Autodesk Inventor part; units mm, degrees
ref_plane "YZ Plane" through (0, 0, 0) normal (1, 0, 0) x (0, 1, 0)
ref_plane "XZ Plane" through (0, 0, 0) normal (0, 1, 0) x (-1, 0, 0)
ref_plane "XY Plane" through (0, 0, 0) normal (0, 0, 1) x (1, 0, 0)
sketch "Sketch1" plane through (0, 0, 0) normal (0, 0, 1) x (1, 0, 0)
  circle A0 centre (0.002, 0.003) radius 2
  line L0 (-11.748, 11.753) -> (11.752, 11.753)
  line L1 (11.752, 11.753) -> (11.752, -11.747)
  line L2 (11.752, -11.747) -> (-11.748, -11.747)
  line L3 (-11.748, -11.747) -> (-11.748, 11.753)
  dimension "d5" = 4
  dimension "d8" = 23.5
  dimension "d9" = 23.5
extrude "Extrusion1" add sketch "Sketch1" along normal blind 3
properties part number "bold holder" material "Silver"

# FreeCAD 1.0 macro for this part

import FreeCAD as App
import Part
import Sketcher
Q = App.Units.Quantity

doc = App.newDocument("Part")
body = doc.addObject("PartDesign::Body", "Body")

# Sketch on XY plane
sketch1 = doc.addObject("Sketcher::SketchObject", "Sketch")
body.addObject(sketch1)
sketch1.AttachmentSupport = (doc.XY_Plane, [""])
sketch1.MapMode = "FlatFace"
sketch1.addGeometry([
    Part.LineSegment(App.Vector(11.8, 11.8, 0), App.Vector(-11.7, 11.8, 0)),  # 0
    Part.LineSegment(App.Vector(-11.7, 11.8, 0), App.Vector(-11.7, -11.7, 0)),  # 1
    Part.LineSegment(App.Vector(-11.7, -11.7, 0), App.Vector(11.8, -11.7, 0)),  # 2
    Part.LineSegment(App.Vector(11.8, -11.7, 0), App.Vector(11.8, 11.8, 0)),  # 3
    Part.Circle(App.Vector(0, 0, 0), App.Vector(0, 0, 1), 2),  # 4
], False)
sketch1.addConstraint([
    Sketcher.Constraint("Coincident", 0, 2, 1, 1),
    Sketcher.Constraint("Coincident", 1, 2, 2, 1),
    Sketcher.Constraint("Coincident", 2, 2, 3, 1),
    Sketcher.Constraint("Coincident", 3, 2, 0, 1),
    Sketcher.Constraint("Horizontal", 0),
    Sketcher.Constraint("Vertical", 1),
    Sketcher.Constraint("Horizontal", 2),
    Sketcher.Constraint("Vertical", 3),
    Sketcher.Constraint("Equal", 2, 1),
    Sketcher.Constraint("Diameter", 4, Q("4 mm")),
    Sketcher.Constraint("DistanceX", 0, 2, 0, 1, Q("23.5 mm")),
    Sketcher.Constraint("DistanceX", 0, 2, 4, 3, Q("11.75 mm")),
    Sketcher.Constraint("DistanceY", 4, 3, 0, 2, Q("11.75 mm")),
    Sketcher.Constraint("DistanceX", -1, 1, 4, 3, Q("0.002 mm")),
    Sketcher.Constraint("DistanceY", -1, 1, 4, 3, Q("0.003 mm")),
])
pad1 = doc.addObject("PartDesign::Pad", "Pad")
body.addObject(pad1)
pad1.Profile = sketch1
pad1.Length = 3

doc.recompute()
